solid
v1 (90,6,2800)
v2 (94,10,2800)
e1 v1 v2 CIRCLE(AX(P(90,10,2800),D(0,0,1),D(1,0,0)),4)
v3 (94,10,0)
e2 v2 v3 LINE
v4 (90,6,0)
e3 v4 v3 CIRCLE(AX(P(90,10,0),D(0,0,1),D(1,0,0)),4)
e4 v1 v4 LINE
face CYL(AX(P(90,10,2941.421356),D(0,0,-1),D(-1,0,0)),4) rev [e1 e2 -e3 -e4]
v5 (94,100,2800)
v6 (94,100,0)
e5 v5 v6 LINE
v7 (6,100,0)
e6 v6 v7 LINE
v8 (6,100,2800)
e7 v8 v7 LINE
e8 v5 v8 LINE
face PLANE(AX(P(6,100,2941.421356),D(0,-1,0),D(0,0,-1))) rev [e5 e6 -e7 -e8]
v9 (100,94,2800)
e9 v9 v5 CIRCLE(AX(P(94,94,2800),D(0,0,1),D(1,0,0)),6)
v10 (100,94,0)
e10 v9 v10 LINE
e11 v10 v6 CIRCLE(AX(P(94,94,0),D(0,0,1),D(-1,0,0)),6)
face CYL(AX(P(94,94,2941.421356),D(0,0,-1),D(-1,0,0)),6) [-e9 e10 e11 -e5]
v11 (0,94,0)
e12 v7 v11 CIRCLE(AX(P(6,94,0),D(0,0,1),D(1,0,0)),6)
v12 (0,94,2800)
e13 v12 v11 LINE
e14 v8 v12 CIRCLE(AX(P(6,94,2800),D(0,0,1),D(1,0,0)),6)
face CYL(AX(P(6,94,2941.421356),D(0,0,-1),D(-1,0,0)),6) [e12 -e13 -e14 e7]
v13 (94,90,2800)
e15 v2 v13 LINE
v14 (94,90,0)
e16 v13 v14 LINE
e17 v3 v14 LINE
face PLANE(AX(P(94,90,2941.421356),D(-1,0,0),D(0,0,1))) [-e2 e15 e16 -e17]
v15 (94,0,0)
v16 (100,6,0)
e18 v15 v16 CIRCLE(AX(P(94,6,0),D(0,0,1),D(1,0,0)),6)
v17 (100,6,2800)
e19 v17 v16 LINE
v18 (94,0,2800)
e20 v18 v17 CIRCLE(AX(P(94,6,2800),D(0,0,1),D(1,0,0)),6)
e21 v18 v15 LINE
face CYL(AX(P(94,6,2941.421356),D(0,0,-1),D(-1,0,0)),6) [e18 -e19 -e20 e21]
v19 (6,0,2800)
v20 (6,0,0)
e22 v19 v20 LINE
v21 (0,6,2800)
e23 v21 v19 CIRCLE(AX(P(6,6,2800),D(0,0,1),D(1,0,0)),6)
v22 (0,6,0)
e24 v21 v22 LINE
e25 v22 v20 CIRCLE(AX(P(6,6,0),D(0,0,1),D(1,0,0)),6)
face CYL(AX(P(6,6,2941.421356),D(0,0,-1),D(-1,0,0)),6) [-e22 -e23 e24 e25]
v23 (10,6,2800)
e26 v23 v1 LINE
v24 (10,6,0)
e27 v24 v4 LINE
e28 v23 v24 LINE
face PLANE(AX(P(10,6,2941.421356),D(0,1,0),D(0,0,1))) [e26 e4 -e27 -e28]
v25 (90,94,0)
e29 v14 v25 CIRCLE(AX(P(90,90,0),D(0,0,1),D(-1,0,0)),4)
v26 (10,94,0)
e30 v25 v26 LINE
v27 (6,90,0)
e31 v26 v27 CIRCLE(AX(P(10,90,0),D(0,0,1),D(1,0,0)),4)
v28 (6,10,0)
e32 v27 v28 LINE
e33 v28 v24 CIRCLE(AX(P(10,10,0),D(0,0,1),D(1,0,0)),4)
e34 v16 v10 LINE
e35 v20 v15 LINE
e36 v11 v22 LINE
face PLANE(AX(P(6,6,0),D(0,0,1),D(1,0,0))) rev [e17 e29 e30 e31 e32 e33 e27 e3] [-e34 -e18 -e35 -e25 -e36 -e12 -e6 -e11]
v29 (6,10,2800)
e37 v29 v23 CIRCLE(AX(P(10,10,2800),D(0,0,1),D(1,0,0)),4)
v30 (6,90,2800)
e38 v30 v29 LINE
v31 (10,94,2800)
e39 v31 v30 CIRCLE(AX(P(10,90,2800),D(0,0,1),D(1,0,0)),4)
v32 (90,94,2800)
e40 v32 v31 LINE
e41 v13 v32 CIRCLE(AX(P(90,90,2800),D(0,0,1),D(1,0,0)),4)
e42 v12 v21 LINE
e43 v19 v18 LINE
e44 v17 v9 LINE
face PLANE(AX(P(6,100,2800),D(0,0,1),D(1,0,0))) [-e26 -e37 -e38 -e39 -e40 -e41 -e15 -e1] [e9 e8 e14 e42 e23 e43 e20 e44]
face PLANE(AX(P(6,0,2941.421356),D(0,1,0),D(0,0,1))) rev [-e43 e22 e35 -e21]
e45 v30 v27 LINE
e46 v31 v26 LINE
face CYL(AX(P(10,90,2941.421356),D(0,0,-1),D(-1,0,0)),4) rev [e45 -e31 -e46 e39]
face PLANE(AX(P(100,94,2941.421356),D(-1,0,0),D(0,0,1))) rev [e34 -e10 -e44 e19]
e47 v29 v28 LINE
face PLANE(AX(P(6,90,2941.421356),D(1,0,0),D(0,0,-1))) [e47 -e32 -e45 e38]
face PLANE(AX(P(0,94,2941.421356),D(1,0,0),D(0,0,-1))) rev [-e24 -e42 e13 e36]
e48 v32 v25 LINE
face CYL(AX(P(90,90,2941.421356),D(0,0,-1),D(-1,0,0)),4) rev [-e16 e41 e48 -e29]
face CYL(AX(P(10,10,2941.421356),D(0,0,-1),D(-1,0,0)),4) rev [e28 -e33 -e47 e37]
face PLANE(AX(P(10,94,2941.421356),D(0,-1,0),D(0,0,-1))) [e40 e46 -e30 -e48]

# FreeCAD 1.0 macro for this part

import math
import FreeCAD as App
import Part
import Sketcher
from FreeCAD import Vector

doc = App.newDocument("Part")
body = doc.addObject("PartDesign::Body", "Body")

# Sketch on XY plane
sketch1 = doc.addObject("Sketcher::SketchObject", "Sketch")
body.addObject(sketch1)
sketch1.AttachmentSupport = (doc.XY_Plane, [""])
sketch1.MapMode = "FlatFace"
sketch1.addGeometry([
    Part.LineSegment(Vector(94, 100, 0), Vector(6, 100, 0)),  # 0
    Part.ArcOfCircle(Part.Circle(Vector(6, 94, 0), Vector(0, 0, 1), 6), math.radians(90), math.radians(180)),  # 1
    Part.LineSegment(Vector(0, 94, 0), Vector(0, 6, 0)),  # 2
    Part.ArcOfCircle(Part.Circle(Vector(6, 6, 0), Vector(0, 0, 1), 6), math.radians(180), math.radians(270)),  # 3
    Part.LineSegment(Vector(6, 0, 0), Vector(94, 0, 0)),  # 4
    Part.ArcOfCircle(Part.Circle(Vector(94, 6, 0), Vector(0, 0, 1), 6), math.radians(-90), math.radians(0)),  # 5
    Part.LineSegment(Vector(100, 6, 0), Vector(100, 94, 0)),  # 6
    Part.ArcOfCircle(Part.Circle(Vector(94, 94, 0), Vector(0, 0, 1), 6), math.radians(0), math.radians(90)),  # 7
    Part.LineSegment(Vector(10, 94, 0), Vector(90, 94, 0)),  # 8
    Part.ArcOfCircle(Part.Circle(Vector(90, 90, 0), Vector(0, 0, 1), 4), math.radians(0), math.radians(90)),  # 9
    Part.LineSegment(Vector(94, 90, 0), Vector(94, 10, 0)),  # 10
    Part.ArcOfCircle(Part.Circle(Vector(90, 10, 0), Vector(0, 0, 1), 4), math.radians(-90), math.radians(0)),  # 11
    Part.LineSegment(Vector(90, 6, 0), Vector(10, 6, 0)),  # 12
    Part.ArcOfCircle(Part.Circle(Vector(10, 10, 0), Vector(0, 0, 1), 4), math.radians(180), math.radians(270)),  # 13
    Part.LineSegment(Vector(6, 10, 0), Vector(6, 90, 0)),  # 14
    Part.ArcOfCircle(Part.Circle(Vector(10, 90, 0), Vector(0, 0, 1), 4), math.radians(90), math.radians(180)),  # 15
], False)
sketch1.addConstraint([
    Sketcher.Constraint("Tangent", 0, 2, 1, 1),
    Sketcher.Constraint("Tangent", 1, 2, 2, 1),
    Sketcher.Constraint("Tangent", 2, 2, 3, 1),
    Sketcher.Constraint("Tangent", 3, 2, 4, 1),
    Sketcher.Constraint("Tangent", 4, 2, 5, 1),
    Sketcher.Constraint("Tangent", 5, 2, 6, 1),
    Sketcher.Constraint("Tangent", 6, 2, 7, 1),
    Sketcher.Constraint("Tangent", 7, 2, 0, 1),
    Sketcher.Constraint("Tangent", 8, 2, 9, 2),
    Sketcher.Constraint("Tangent", 9, 1, 10, 1),
    Sketcher.Constraint("Tangent", 10, 2, 11, 2),
    Sketcher.Constraint("Tangent", 11, 1, 12, 1),
    Sketcher.Constraint("Tangent", 12, 2, 13, 2),
    Sketcher.Constraint("Tangent", 13, 1, 14, 1),
    Sketcher.Constraint("Tangent", 14, 2, 15, 2),
    Sketcher.Constraint("Tangent", 15, 1, 8, 1),
    Sketcher.Constraint("Horizontal", 0),
    Sketcher.Constraint("Vertical", 2),
    Sketcher.Constraint("Horizontal", 4),
    Sketcher.Constraint("Vertical", 6),
    Sketcher.Constraint("Horizontal", 8),
    Sketcher.Constraint("Vertical", 10),
    Sketcher.Constraint("Horizontal", 12),
    Sketcher.Constraint("Vertical", 14),
    Sketcher.Constraint("Equal", 1, 3),
    Sketcher.Constraint("Equal", 3, 5),
    Sketcher.Constraint("Equal", 5, 7),
    Sketcher.Constraint("Equal", 9, 11),
    Sketcher.Constraint("Equal", 11, 13),
    Sketcher.Constraint("Equal", 13, 15),
    Sketcher.Constraint("PointOnObject", 1, 2, -2),
    Sketcher.Constraint("PointOnObject", 3, 2, -1),
    Sketcher.Constraint("Horizontal", 6, 2, 8, 2),
    Sketcher.Constraint("Horizontal", 5, 2, 11, 1),
    Sketcher.Constraint("Vertical", 7, 2, 9, 1),
    Sketcher.Constraint("Vertical", 3, 2, 13, 1),
    Sketcher.Constraint("Equal", 4, 2),
    Sketcher.Constraint("Radius", 1, 6.0),
    Sketcher.Constraint("Radius", 9, 4.0),
    Sketcher.Constraint("DistanceX", 0, 2, 0, 1, 88.0),
])
pad1 = doc.addObject("PartDesign::Pad", "Pad")
body.addObject(pad1)
pad1.Profile = sketch1
pad1.Length = 2800

doc.recompute()
